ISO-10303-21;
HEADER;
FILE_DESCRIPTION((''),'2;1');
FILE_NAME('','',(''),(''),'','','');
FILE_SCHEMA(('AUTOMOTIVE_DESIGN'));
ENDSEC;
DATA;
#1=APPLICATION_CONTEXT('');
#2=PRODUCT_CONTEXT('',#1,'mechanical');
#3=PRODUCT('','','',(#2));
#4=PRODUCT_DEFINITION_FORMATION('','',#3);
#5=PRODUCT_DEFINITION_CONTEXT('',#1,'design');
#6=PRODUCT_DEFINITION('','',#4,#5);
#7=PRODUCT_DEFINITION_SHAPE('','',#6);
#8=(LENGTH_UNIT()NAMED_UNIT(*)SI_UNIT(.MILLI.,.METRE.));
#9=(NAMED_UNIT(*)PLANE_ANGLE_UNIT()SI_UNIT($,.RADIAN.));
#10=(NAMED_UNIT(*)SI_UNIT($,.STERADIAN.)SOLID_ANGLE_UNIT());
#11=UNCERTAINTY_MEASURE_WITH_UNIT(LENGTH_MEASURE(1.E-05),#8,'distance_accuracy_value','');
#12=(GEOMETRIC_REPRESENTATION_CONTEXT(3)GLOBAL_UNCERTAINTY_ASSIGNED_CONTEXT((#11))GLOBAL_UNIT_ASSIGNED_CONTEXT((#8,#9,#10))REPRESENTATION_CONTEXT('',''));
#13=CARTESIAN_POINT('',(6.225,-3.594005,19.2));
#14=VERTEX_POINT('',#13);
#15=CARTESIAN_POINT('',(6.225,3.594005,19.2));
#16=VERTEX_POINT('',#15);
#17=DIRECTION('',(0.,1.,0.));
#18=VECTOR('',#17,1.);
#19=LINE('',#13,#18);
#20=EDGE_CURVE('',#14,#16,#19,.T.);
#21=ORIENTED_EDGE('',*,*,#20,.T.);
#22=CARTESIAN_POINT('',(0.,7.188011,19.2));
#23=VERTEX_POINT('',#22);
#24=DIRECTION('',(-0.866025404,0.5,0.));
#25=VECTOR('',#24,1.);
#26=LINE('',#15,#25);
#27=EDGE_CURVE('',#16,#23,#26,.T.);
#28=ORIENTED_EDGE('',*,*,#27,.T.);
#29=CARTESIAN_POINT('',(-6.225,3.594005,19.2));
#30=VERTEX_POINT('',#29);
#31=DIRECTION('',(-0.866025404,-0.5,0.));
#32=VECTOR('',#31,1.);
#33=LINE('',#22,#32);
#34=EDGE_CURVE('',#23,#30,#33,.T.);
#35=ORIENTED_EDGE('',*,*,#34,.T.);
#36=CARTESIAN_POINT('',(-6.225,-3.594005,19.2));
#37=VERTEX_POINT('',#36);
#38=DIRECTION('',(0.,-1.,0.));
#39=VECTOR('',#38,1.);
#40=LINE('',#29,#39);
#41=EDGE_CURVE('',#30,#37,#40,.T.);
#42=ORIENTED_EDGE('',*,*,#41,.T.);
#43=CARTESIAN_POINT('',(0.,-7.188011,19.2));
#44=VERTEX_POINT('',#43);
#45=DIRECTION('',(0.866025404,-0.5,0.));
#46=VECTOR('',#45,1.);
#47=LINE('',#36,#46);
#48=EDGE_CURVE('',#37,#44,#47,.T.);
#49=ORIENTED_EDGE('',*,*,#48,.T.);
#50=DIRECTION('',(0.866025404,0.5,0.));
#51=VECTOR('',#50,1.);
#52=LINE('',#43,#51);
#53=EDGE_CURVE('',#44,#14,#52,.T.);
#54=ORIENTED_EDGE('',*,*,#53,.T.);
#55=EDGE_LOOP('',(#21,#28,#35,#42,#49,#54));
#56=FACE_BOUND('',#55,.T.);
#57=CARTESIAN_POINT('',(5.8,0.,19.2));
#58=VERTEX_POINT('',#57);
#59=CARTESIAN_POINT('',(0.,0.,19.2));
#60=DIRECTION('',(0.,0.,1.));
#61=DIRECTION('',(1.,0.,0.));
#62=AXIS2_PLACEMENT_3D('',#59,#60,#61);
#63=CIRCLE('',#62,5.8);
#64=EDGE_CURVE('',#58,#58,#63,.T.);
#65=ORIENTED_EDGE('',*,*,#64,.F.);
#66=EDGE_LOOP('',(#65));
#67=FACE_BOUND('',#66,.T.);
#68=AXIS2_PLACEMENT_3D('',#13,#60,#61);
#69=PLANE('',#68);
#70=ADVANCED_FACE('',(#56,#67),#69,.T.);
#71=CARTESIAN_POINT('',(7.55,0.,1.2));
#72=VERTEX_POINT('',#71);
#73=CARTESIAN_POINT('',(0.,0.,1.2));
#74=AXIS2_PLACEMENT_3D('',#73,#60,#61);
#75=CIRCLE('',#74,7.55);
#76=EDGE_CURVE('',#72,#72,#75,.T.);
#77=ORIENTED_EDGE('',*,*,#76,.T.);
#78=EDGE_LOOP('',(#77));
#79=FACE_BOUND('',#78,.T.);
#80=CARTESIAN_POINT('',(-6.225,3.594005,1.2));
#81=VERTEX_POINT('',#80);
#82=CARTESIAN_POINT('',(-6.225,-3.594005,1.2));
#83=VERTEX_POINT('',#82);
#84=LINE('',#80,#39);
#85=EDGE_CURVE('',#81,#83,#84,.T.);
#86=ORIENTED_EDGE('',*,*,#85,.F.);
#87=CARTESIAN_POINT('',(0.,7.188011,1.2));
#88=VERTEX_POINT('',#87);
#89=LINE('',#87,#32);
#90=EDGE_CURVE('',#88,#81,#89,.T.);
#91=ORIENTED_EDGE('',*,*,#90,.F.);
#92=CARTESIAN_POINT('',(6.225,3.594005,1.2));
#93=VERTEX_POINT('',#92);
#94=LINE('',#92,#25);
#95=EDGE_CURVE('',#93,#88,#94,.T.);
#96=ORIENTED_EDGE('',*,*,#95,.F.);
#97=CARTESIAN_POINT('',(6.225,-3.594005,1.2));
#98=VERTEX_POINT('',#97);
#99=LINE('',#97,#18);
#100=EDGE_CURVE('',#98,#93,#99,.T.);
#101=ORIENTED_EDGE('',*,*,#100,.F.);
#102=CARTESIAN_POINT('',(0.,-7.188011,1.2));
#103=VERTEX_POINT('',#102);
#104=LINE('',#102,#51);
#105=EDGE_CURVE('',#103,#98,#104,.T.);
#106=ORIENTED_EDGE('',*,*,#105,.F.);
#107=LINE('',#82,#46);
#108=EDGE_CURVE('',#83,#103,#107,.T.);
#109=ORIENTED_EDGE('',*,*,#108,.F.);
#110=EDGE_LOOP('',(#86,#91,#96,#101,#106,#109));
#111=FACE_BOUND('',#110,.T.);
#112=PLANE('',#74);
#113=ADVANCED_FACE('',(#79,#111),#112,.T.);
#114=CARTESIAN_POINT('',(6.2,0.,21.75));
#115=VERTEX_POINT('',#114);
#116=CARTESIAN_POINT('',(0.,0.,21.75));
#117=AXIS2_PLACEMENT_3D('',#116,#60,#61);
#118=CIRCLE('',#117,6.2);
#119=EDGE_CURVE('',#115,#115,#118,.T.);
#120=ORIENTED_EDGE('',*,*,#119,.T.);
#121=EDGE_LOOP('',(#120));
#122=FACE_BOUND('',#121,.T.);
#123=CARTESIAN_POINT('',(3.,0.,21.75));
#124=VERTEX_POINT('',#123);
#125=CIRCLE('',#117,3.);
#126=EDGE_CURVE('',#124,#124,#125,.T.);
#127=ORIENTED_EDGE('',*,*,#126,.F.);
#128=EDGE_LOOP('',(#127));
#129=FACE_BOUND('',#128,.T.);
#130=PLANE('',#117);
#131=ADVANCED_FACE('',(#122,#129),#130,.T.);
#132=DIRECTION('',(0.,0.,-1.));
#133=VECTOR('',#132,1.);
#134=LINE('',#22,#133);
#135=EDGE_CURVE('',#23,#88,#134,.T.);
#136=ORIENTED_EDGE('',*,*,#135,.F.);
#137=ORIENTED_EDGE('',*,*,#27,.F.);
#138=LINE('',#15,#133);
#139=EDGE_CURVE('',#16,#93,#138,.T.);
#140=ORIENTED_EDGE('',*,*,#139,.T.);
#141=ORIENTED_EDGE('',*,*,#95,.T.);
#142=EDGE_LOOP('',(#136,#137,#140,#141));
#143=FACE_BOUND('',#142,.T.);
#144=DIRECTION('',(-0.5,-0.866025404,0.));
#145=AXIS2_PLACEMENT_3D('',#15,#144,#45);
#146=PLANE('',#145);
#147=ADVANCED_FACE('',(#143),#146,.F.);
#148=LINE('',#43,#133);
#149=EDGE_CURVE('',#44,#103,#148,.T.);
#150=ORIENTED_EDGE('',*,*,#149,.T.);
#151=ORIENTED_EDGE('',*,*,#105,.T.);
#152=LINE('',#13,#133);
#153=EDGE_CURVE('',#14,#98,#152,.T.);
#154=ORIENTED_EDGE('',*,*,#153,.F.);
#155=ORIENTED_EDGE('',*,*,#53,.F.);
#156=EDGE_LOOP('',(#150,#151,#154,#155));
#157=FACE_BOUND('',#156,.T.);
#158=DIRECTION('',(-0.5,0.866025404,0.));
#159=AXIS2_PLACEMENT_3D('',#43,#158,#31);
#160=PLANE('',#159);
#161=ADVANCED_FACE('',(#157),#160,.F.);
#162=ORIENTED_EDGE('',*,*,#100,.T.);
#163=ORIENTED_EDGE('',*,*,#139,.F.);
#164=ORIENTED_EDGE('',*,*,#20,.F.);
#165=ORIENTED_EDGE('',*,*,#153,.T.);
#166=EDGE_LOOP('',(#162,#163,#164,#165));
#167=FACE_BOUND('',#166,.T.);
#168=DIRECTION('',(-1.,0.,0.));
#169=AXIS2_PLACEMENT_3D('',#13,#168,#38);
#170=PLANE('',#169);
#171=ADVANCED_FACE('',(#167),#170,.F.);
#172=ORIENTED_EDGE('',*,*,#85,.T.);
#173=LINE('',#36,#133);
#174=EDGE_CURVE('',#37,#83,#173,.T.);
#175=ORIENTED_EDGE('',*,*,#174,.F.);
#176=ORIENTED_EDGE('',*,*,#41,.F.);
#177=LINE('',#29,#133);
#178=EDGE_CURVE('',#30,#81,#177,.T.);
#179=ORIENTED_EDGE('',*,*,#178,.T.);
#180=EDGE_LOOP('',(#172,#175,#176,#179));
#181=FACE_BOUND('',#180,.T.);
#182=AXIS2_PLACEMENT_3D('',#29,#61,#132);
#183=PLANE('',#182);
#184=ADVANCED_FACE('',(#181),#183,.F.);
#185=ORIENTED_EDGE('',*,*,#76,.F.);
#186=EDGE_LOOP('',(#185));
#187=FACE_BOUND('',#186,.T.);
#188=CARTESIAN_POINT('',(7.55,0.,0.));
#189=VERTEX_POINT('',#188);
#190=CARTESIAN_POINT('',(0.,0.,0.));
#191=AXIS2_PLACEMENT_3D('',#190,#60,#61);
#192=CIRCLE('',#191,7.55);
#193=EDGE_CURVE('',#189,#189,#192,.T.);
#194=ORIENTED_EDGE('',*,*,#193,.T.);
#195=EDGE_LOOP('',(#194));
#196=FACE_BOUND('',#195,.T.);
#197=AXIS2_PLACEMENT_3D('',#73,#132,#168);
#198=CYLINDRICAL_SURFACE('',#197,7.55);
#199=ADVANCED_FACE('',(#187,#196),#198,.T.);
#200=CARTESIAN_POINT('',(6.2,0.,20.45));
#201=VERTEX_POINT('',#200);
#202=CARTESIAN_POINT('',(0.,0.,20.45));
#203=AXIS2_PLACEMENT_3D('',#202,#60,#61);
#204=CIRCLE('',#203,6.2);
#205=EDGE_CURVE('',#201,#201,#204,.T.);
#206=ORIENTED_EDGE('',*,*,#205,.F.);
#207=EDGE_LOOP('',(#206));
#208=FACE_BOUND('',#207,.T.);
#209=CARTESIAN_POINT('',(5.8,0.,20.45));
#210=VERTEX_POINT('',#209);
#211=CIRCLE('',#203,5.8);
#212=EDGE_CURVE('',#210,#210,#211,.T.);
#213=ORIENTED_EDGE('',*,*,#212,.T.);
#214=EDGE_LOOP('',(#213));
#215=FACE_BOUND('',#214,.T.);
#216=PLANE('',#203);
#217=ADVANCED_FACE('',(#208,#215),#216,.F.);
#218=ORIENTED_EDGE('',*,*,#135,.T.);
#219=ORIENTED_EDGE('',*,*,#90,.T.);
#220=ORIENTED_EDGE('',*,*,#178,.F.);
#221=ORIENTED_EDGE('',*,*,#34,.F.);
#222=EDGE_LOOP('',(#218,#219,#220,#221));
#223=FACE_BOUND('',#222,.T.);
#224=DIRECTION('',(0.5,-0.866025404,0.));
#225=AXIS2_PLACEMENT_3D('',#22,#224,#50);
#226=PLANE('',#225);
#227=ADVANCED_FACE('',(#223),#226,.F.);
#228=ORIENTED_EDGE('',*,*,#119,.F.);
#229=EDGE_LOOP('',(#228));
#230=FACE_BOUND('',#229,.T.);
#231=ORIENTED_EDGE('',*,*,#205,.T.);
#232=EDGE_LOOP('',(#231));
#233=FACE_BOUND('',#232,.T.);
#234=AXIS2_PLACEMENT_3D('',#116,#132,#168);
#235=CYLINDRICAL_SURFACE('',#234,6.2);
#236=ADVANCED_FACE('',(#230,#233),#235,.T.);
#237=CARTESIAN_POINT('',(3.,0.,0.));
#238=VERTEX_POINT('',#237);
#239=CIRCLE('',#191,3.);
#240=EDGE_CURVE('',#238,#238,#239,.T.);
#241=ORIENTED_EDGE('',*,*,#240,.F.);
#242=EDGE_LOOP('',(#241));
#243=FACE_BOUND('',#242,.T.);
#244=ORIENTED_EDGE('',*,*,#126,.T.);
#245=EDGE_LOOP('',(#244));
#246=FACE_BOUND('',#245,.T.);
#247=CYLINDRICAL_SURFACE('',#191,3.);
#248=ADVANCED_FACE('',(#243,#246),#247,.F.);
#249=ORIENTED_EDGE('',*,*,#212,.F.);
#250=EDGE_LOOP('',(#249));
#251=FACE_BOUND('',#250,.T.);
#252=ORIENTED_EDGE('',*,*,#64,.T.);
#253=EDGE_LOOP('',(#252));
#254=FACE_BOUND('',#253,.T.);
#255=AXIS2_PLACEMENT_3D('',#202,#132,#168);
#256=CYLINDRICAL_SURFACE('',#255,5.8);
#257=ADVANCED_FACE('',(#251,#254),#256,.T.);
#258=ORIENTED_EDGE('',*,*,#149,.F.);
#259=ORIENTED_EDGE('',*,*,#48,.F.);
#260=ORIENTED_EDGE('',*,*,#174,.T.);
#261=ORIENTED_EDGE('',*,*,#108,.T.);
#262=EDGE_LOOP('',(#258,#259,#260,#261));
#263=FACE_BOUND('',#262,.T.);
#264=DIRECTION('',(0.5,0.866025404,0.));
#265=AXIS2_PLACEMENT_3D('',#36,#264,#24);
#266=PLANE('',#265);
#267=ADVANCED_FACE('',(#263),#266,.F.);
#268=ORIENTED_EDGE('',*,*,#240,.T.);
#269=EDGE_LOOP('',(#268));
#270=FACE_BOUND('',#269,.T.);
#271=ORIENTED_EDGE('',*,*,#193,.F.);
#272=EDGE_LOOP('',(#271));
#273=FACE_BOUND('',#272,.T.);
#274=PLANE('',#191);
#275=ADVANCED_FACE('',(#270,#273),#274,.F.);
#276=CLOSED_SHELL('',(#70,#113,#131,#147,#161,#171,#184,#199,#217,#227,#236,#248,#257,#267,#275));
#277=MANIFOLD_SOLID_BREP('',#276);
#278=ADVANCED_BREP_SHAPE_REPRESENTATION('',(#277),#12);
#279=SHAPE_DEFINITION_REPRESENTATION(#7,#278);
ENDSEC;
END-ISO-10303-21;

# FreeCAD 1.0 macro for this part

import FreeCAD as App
import Part
import Sketcher
Q = App.Units.Quantity

doc = App.newDocument("Part")
body = doc.addObject("PartDesign::Body", "Body")

# Sketch on XY plane
sketch1 = body.newObject("Sketcher::SketchObject", "Sketch")
sketch1.AttachmentSupport = (doc.getObject("XY_Plane"), [""])
sketch1.MapMode = "FlatFace"
sketch1.addGeometry(Part.Circle(App.Vector(0, 0, 0), App.Vector(0, 0, 1), 8), False)
sketch1.addConstraint(Sketcher.Constraint("Coincident", 0, 3, -1, 1))
sketch1.addConstraint(Sketcher.Constraint("Diameter", 0, Q("15.1 mm")))
pad1 = body.newObject("PartDesign::Pad", "Pad")
pad1.Profile = sketch1
pad1.Length = 1.2

# Sketch on XY plane
sketch2 = body.newObject("Sketcher::SketchObject", "Sketch001")
sketch2.AttachmentSupport = (doc.getObject("XY_Plane"), [""])
sketch2.MapMode = "FlatFace"
sketch2.AttachmentOffset = App.Placement(App.Vector(0, 0, 1.2), App.Rotation())
sketch2.addGeometry(Part.LineSegment(App.Vector(6, -4, 0), App.Vector(6, 4, 0)), False)
sketch2.addGeometry(Part.LineSegment(App.Vector(6, 4, 0), App.Vector(0, 7, 0)), False)
sketch2.addGeometry(Part.LineSegment(App.Vector(0, 7, 0), App.Vector(-6, 4, 0)), False)
sketch2.addGeometry(Part.LineSegment(App.Vector(-6, 4, 0), App.Vector(-6, -4, 0)), False)
sketch2.addGeometry(Part.LineSegment(App.Vector(-6, -4, 0), App.Vector(0, -7, 0)), False)
sketch2.addGeometry(Part.LineSegment(App.Vector(0, -7, 0), App.Vector(6, -4, 0)), False)
sketch2.addConstraint(Sketcher.Constraint("Coincident", 0, 2, 1, 1))
sketch2.addConstraint(Sketcher.Constraint("Coincident", 1, 2, 2, 1))
sketch2.addConstraint(Sketcher.Constraint("Coincident", 2, 2, 3, 1))
sketch2.addConstraint(Sketcher.Constraint("Coincident", 3, 2, 4, 1))
sketch2.addConstraint(Sketcher.Constraint("Coincident", 4, 2, 5, 1))
sketch2.addConstraint(Sketcher.Constraint("Coincident", 5, 2, 0, 1))
sketch2.addConstraint(Sketcher.Constraint("Vertical", 0))
sketch2.addConstraint(Sketcher.Constraint("Vertical", 3))
sketch2.addConstraint(Sketcher.Constraint("Symmetric", 0, 2, 3, 2, -1, 1))
sketch2.addConstraint(Sketcher.Constraint("Symmetric", 1, 2, 4, 2, -1, 1))
sketch2.addConstraint(Sketcher.Constraint("PointOnObject", 1, 2, -2))
sketch2.addConstraint(Sketcher.Constraint("Parallel", 2, 5))
sketch2.addConstraint(Sketcher.Constraint("Horizontal", 0, 2, 2, 2))
sketch2.addConstraint(Sketcher.Constraint("Angle", 1, Q("150 deg")))
sketch2.addConstraint(Sketcher.Constraint("DistanceX", 2, 2, 0, 2, Q("12.45 mm")))
sketch2.addConstraint(Sketcher.Constraint("DistanceY", 0, 1, 0, 2, Q("7.188011 mm")))
pad2 = body.newObject("PartDesign::Pad", "Pad001")
pad2.Profile = sketch2
pad2.Length = 18

# Sketch on XY plane
sketch3 = body.newObject("Sketcher::SketchObject", "Sketch002")
sketch3.AttachmentSupport = (doc.getObject("XY_Plane"), [""])
sketch3.MapMode = "FlatFace"
sketch3.AttachmentOffset = App.Placement(App.Vector(0, 0, 19.2), App.Rotation())
sketch3.addGeometry(Part.Circle(App.Vector(0, 0, 0), App.Vector(0, 0, 1), 6), False)
sketch3.addConstraint(Sketcher.Constraint("Coincident", 0, 3, -1, 1))
sketch3.addConstraint(Sketcher.Constraint("Diameter", 0, Q("11.6 mm")))
pad3 = body.newObject("PartDesign::Pad", "Pad002")
pad3.Profile = sketch3
pad3.Length = 1.25

# Sketch on XY plane
sketch4 = body.newObject("Sketcher::SketchObject", "Sketch003")
sketch4.AttachmentSupport = (doc.getObject("XY_Plane"), [""])
sketch4.MapMode = "FlatFace"
sketch4.AttachmentOffset = App.Placement(App.Vector(0, 0, 20.45), App.Rotation())
sketch4.addGeometry(Part.Circle(App.Vector(0, 0, 0), App.Vector(0, 0, 1), 6), False)
sketch4.addConstraint(Sketcher.Constraint("Coincident", 0, 3, -1, 1))
sketch4.addConstraint(Sketcher.Constraint("Diameter", 0, Q("12.4 mm")))
pad4 = body.newObject("PartDesign::Pad", "Pad003")
pad4.Profile = sketch4
pad4.Length = 1.3

# Sketch on XY plane
sketch5 = body.newObject("Sketcher::SketchObject", "Sketch004")
sketch5.AttachmentSupport = (doc.getObject("XY_Plane"), [""])
sketch5.MapMode = "FlatFace"
sketch5.AttachmentOffset = App.Placement(App.Vector(0, 0, 21.75), App.Rotation())
sketch5.addGeometry(Part.Circle(App.Vector(0, 0, 0), App.Vector(0, 0, 1), 3), False)
sketch5.addConstraint(Sketcher.Constraint("Coincident", 0, 3, -1, 1))
sketch5.addConstraint(Sketcher.Constraint("Diameter", 0, Q("6 mm")))
pocket1 = body.newObject("PartDesign::Pocket", "Pocket")
pocket1.Profile = sketch5
pocket1.Type = "ThroughAll"

doc.recompute()
